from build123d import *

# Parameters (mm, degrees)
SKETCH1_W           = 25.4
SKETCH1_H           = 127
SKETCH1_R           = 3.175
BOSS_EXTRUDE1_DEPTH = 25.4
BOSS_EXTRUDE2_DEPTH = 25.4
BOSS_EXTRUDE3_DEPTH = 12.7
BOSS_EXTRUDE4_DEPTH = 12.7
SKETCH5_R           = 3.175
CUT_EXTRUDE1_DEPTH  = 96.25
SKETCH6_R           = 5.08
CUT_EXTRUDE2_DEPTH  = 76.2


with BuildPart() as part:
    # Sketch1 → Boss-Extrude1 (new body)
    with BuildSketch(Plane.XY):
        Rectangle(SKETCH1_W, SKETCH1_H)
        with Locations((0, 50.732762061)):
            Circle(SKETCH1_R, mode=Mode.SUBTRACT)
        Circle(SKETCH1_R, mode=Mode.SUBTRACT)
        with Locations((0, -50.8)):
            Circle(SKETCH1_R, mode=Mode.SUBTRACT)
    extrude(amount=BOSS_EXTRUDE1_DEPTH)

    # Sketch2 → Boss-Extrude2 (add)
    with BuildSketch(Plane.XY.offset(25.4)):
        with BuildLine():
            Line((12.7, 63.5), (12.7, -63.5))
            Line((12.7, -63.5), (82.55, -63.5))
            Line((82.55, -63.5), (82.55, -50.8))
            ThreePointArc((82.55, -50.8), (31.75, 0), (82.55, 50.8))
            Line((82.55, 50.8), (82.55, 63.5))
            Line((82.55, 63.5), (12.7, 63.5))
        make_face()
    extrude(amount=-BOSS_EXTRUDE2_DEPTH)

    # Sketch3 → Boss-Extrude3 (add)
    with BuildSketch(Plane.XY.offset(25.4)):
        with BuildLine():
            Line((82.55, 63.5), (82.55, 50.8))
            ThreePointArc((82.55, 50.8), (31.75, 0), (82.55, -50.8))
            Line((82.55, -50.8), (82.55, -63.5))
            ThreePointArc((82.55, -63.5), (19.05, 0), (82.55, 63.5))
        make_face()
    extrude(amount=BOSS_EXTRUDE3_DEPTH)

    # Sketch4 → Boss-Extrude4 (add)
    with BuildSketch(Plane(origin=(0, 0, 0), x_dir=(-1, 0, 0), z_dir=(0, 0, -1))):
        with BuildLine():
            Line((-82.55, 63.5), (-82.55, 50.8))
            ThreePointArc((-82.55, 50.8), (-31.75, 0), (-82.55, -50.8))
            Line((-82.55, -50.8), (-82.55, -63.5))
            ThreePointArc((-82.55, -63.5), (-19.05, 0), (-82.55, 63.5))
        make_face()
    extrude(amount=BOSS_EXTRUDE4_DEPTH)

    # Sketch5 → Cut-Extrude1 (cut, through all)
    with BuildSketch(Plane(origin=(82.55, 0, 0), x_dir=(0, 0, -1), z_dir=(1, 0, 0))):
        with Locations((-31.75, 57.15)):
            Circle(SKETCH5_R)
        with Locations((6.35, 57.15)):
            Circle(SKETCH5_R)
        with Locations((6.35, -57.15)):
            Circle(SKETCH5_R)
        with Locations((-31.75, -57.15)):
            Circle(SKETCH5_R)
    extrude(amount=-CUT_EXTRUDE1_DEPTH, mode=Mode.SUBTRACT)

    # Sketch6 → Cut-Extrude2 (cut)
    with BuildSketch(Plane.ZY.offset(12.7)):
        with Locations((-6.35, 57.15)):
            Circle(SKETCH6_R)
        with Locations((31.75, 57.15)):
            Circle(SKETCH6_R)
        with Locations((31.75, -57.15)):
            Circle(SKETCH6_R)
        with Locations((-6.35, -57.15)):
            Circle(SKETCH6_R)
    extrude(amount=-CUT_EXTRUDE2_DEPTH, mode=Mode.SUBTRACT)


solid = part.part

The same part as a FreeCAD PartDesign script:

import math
import FreeCAD as App
import Part
import Sketcher
Q = App.Units.Quantity

doc = App.newDocument("Part")
params = doc.addObject("Spreadsheet::Sheet", "Params")
for row, (alias, value) in enumerate([
    ("sketch1_diameter", "0.25 in"),
    ("sketch1_width", "1 in"),
    ("sketch1_height", "5 in"),
    ("pad1_length", "1 in"),
    ("sketch2_radius", "2 in"),
    ("sketch2_height", "5 in"),
    ("sketch2_width", "2.75 in"),
    ("pad2_length", "1 in"),
    ("sketch3_radius", "2 in"),
    ("sketch3_radius2", "2.5 in"),
    ("pad3_length", "0.5 in"),
    ("sketch4_radius", "2 in"),
    ("sketch4_radius2", "2.5 in"),
    ("pad4_length", "0.5 in"),
    ("sketch5_diameter", "0.25 in"),
    ("sketch6_diameter", "0.4 in"),
    ("pocket2_length", "3 in"),
], start=1):
    params.set(f"A{row}", alias)
    params.set(f"B{row}", "=" + value)
    params.setAlias(f"B{row}", alias)

body = doc.addObject("PartDesign::Body", "Body")

# Sketch on XY plane
sketch1 = body.newObject("Sketcher::SketchObject", "Sketch")
sketch1.AttachmentSupport = (doc.getObject("XY_Plane"), [""])
sketch1.MapMode = "FlatFace"
sketch1.addGeometry(Part.LineSegment(App.Vector(-12.7, 63.5, 0), App.Vector(-12.7, -63.5, 0)), False)
sketch1.addGeometry(Part.LineSegment(App.Vector(-12.7, -63.5, 0), App.Vector(12.7, -63.5, 0)), False)
sketch1.addGeometry(Part.LineSegment(App.Vector(12.7, -63.5, 0), App.Vector(12.7, 63.5, 0)), False)
sketch1.addGeometry(Part.LineSegment(App.Vector(12.7, 63.5, 0), App.Vector(-12.7, 63.5, 0)), False)
sketch1.addGeometry(Part.Circle(App.Vector(0, -50.8, 0), App.Vector(0, 0, 1), 3.2), False)
sketch1.addGeometry(Part.Circle(App.Vector(0, 0, 0), App.Vector(0, 0, 1), 3.2), False)
sketch1.addGeometry(Part.Circle(App.Vector(0, 50.7, 0), App.Vector(0, 0, 1), 3.2), False)
sketch1.addConstraint(Sketcher.Constraint("Coincident", 0, 2, 1, 1))
sketch1.addConstraint(Sketcher.Constraint("Coincident", 1, 2, 2, 1))
sketch1.addConstraint(Sketcher.Constraint("Coincident", 2, 2, 3, 1))
sketch1.addConstraint(Sketcher.Constraint("Coincident", 3, 2, 0, 1))
sketch1.addConstraint(Sketcher.Constraint("Vertical", 0))
sketch1.addConstraint(Sketcher.Constraint("Horizontal", 1))
sketch1.addConstraint(Sketcher.Constraint("Vertical", 2))
sketch1.addConstraint(Sketcher.Constraint("Horizontal", 3))
sketch1.addConstraint(Sketcher.Constraint("Coincident", 5, 3, -1, 1))
sketch1.addConstraint(Sketcher.Constraint("Equal", 4, 5))
sketch1.addConstraint(Sketcher.Constraint("Equal", 5, 6))
sketch1.addConstraint(Sketcher.Constraint("Symmetric", 0, 2, 2, 2, -1, 1))
sketch1.addConstraint(Sketcher.Constraint("PointOnObject", 4, 3, -2))
sketch1.addConstraint(Sketcher.Constraint("PointOnObject", 6, 3, -2))
sketch1.addConstraint(Sketcher.Constraint("Diameter", 4, Q("0.25 in")))
sketch1.addConstraint(Sketcher.Constraint("DistanceX", 1, 1, 1, 2, Q("1 in")))
sketch1.addConstraint(Sketcher.Constraint("DistanceY", 0, 2, 0, 1, Q("5 in")))
sketch1.addConstraint(Sketcher.Constraint("DistanceY", 4, 3, -1, 1, Q("2 in")))
sketch1.addConstraint(Sketcher.Constraint("DistanceY", -1, 1, 6, 3, 50.732762))
sketch1.setExpression("Constraints[14]", "Params.sketch1_diameter")
sketch1.setExpression("Constraints[15]", "Params.sketch1_width")
sketch1.setExpression("Constraints[16]", "Params.sketch1_height")
pad1 = body.newObject("PartDesign::Pad", "Pad")
pad1.Profile = sketch1
pad1.setExpression("Length", "Params.pad1_length")

# Sketch on XY plane
sketch2 = body.newObject("Sketcher::SketchObject", "Sketch001")
sketch2.AttachmentSupport = (doc.getObject("XY_Plane"), [""])
sketch2.MapMode = "FlatFace"
sketch2.AttachmentOffset = App.Placement(App.Vector(0, 0, 1 * 25.4), App.Rotation())
sketch2.addGeometry(Part.LineSegment(App.Vector(13, 64, 0), App.Vector(13, -64, 0)), False)
sketch2.addGeometry(Part.LineSegment(App.Vector(13, -64, 0), App.Vector(83, -64, 0)), False)
sketch2.addGeometry(Part.LineSegment(App.Vector(83, -64, 0), App.Vector(83, -51, 0)), False)
sketch2.addGeometry(Part.ArcOfCircle(Part.Circle(App.Vector(83, 0, 0), App.Vector(0, 0, 1), 51), math.radians(90), math.radians(270)), False)
sketch2.addGeometry(Part.LineSegment(App.Vector(83, 51, 0), App.Vector(83, 64, 0)), False)
sketch2.addGeometry(Part.LineSegment(App.Vector(83, 64, 0), App.Vector(13, 64, 0)), False)
sketch2.addConstraint(Sketcher.Constraint("Coincident", 0, 2, 1, 1))
sketch2.addConstraint(Sketcher.Constraint("Coincident", 1, 2, 2, 1))
sketch2.addConstraint(Sketcher.Constraint("Coincident", 2, 2, 3, 2))
sketch2.addConstraint(Sketcher.Constraint("Coincident", 3, 1, 4, 1))
sketch2.addConstraint(Sketcher.Constraint("Coincident", 4, 2, 5, 1))
sketch2.addConstraint(Sketcher.Constraint("Coincident", 5, 2, 0, 1))
sketch2.addConstraint(Sketcher.Constraint("Vertical", 0))
sketch2.addConstraint(Sketcher.Constraint("Horizontal", 1))
sketch2.addConstraint(Sketcher.Constraint("Vertical", 2))
sketch2.addConstraint(Sketcher.Constraint("Vertical", 4))
sketch2.addConstraint(Sketcher.Constraint("Horizontal", 5))
sketch2.addConstraint(Sketcher.Constraint("Symmetric", 2, 2, 3, 1, -1))
sketch2.addConstraint(Sketcher.Constraint("Vertical", 3, 3, 1, 2))
sketch2.addConstraint(Sketcher.Constraint("Equal", 2, 4))
sketch2.addConstraint(Sketcher.Constraint("Radius", 3, Q("2 in")))
sketch2.addConstraint(Sketcher.Constraint("DistanceY", 0, 2, 0, 1, Q("5 in")))
sketch2.addConstraint(Sketcher.Constraint("DistanceX", 1, 1, 1, 2, Q("2.75 in")))
sketch2.addConstraint(Sketcher.Constraint("DistanceX", -1, 1, 0, 2, Q("0.5 in")))
sketch2.setExpression("Constraints[14]", "Params.sketch2_radius")
sketch2.setExpression("Constraints[15]", "Params.sketch2_height")
sketch2.setExpression("Constraints[16]", "Params.sketch2_width")
pad2 = body.newObject("PartDesign::Pad", "Pad001")
pad2.Profile = sketch2
pad2.setExpression("Length", "Params.pad2_length")
pad2.Reversed = True

# Sketch on XY plane
sketch3 = body.newObject("Sketcher::SketchObject", "Sketch002")
sketch3.AttachmentSupport = (doc.getObject("XY_Plane"), [""])
sketch3.MapMode = "FlatFace"
sketch3.AttachmentOffset = App.Placement(App.Vector(0, 0, 1 * 25.4), App.Rotation())
sketch3.addGeometry(Part.LineSegment(App.Vector(83, 51, 0), App.Vector(83, 64, 0)), False)
sketch3.addGeometry(Part.ArcOfCircle(Part.Circle(App.Vector(83, 0, 0), App.Vector(0, 0, 1), 64), math.radians(90), math.radians(270)), False)
sketch3.addGeometry(Part.LineSegment(App.Vector(83, -64, 0), App.Vector(83, -51, 0)), False)
sketch3.addGeometry(Part.ArcOfCircle(Part.Circle(App.Vector(83, 0, 0), App.Vector(0, 0, 1), 51), math.radians(90), math.radians(270)), False)
sketch3.addConstraint(Sketcher.Constraint("Coincident", 0, 2, 1, 1))
sketch3.addConstraint(Sketcher.Constraint("Coincident", 1, 2, 2, 1))
sketch3.addConstraint(Sketcher.Constraint("Coincident", 2, 2, 3, 2))
sketch3.addConstraint(Sketcher.Constraint("Coincident", 3, 1, 0, 1))
sketch3.addConstraint(Sketcher.Constraint("Vertical", 0))
sketch3.addConstraint(Sketcher.Constraint("Vertical", 2))
sketch3.addConstraint(Sketcher.Constraint("Coincident", 3, 3, 1, 3))
sketch3.addConstraint(Sketcher.Constraint("Symmetric", 0, 2, 1, 2, -1))
sketch3.addConstraint(Sketcher.Constraint("Vertical", 3, 3, 0, 2))
sketch3.addConstraint(Sketcher.Constraint("Radius", 3, Q("2 in")))
sketch3.addConstraint(Sketcher.Constraint("Radius", 1, Q("2.5 in")))
sketch3.addConstraint(Sketcher.Constraint("DistanceX", -1, 1, 1, 3, Q("3.25 in")))
sketch3.setExpression("Constraints[9]", "Params.sketch3_radius")
sketch3.setExpression("Constraints[10]", "Params.sketch3_radius2")
pad3 = body.newObject("PartDesign::Pad", "Pad002")
pad3.Profile = sketch3
pad3.setExpression("Length", "Params.pad3_length")

# Sketch on XY plane
sketch4 = body.newObject("Sketcher::SketchObject", "Sketch003")
sketch4.AttachmentSupport = (doc.getObject("XY_Plane"), [""])
sketch4.MapMode = "FlatFace"
sketch4.addGeometry(Part.LineSegment(App.Vector(83, 64, 0), App.Vector(83, 51, 0)), False)
sketch4.addGeometry(Part.ArcOfCircle(Part.Circle(App.Vector(83, 0, 0), App.Vector(0, 0, 1), 51), math.radians(90), math.radians(270)), False)
sketch4.addGeometry(Part.LineSegment(App.Vector(83, -51, 0), App.Vector(83, -64, 0)), False)
sketch4.addGeometry(Part.ArcOfCircle(Part.Circle(App.Vector(83, 0, 0), App.Vector(0, 0, 1), 64), math.radians(90), math.radians(270)), False)
sketch4.addConstraint(Sketcher.Constraint("Coincident", 0, 2, 1, 1))
sketch4.addConstraint(Sketcher.Constraint("Coincident", 1, 2, 2, 1))
sketch4.addConstraint(Sketcher.Constraint("Coincident", 2, 2, 3, 2))
sketch4.addConstraint(Sketcher.Constraint("Coincident", 3, 1, 0, 1))
sketch4.addConstraint(Sketcher.Constraint("Vertical", 0))
sketch4.addConstraint(Sketcher.Constraint("Vertical", 2))
sketch4.addConstraint(Sketcher.Constraint("Coincident", 3, 3, 1, 3))
sketch4.addConstraint(Sketcher.Constraint("Symmetric", 0, 2, 1, 2, -1))
sketch4.addConstraint(Sketcher.Constraint("Vertical", 3, 3, 0, 2))
sketch4.addConstraint(Sketcher.Constraint("Radius", 1, Q("2 in")))
sketch4.addConstraint(Sketcher.Constraint("Radius", 3, Q("2.5 in")))
sketch4.addConstraint(Sketcher.Constraint("DistanceX", -1, 1, 1, 3, Q("3.25 in")))
sketch4.setExpression("Constraints[9]", "Params.sketch4_radius")
sketch4.setExpression("Constraints[10]", "Params.sketch4_radius2")
pad4 = body.newObject("PartDesign::Pad", "Pad003")
pad4.Profile = sketch4
pad4.setExpression("Length", "Params.pad4_length")
pad4.Reversed = True

# Sketch on YZ plane
sketch5 = body.newObject("Sketcher::SketchObject", "Sketch004")
sketch5.AttachmentSupport = (doc.getObject("YZ_Plane"), [""])
sketch5.MapMode = "FlatFace"
sketch5.AttachmentOffset = App.Placement(App.Vector(0, 0, 3.25 * 25.4), App.Rotation())
sketch5.addGeometry(Part.Circle(App.Vector(57.1, 31.8, 0), App.Vector(0, 0, 1), 3.2), False)
sketch5.addGeometry(Part.Circle(App.Vector(57.1, -6.3, 0), App.Vector(0, 0, 1), 3.2), False)
sketch5.addGeometry(Part.Circle(App.Vector(-57.1, -6.3, 0), App.Vector(0, 0, 1), 3.2), False)
sketch5.addGeometry(Part.Circle(App.Vector(-57.1, 31.8, 0), App.Vector(0, 0, 1), 3.2), False)
sketch5.addConstraint(Sketcher.Constraint("Equal", 0, 1))
sketch5.addConstraint(Sketcher.Constraint("Equal", 1, 2))
sketch5.addConstraint(Sketcher.Constraint("Equal", 2, 3))
sketch5.addConstraint(Sketcher.Constraint("Symmetric", 1, 3, 2, 3, -2))
sketch5.addConstraint(Sketcher.Constraint("Symmetric", 0, 3, 3, 3, -2))
sketch5.addConstraint(Sketcher.Constraint("Vertical", 0, 3, 1, 3))
sketch5.addConstraint(Sketcher.Constraint("Diameter", 0, Q("0.25 in")))
sketch5.addConstraint(Sketcher.Constraint("DistanceY", 1, 3, 0, 3, Q("1.5 in")))
sketch5.addConstraint(Sketcher.Constraint("DistanceX", 2, 3, 1, 3, Q("4.5 in")))
sketch5.addConstraint(Sketcher.Constraint("DistanceY", -1, 1, 0, 3, Q("1.25 in")))
sketch5.setExpression("Constraints[6]", "Params.sketch5_diameter")
pocket1 = body.newObject("PartDesign::Pocket", "Pocket")
pocket1.Profile = sketch5
pocket1.Type = "ThroughAll"

# Sketch on YZ plane
sketch6 = body.newObject("Sketcher::SketchObject", "Sketch005")
sketch6.AttachmentSupport = (doc.getObject("YZ_Plane"), [""])
sketch6.MapMode = "FlatFace"
sketch6.AttachmentOffset = App.Placement(App.Vector(0, 0, -0.5 * 25.4), App.Rotation())
sketch6.addGeometry(Part.Circle(App.Vector(57, -6, 0), App.Vector(0, 0, 1), 5), False)
sketch6.addGeometry(Part.Circle(App.Vector(57, 32, 0), App.Vector(0, 0, 1), 5), False)
sketch6.addGeometry(Part.Circle(App.Vector(-57, 32, 0), App.Vector(0, 0, 1), 5), False)
sketch6.addGeometry(Part.Circle(App.Vector(-57, -6, 0), App.Vector(0, 0, 1), 5), False)
sketch6.addConstraint(Sketcher.Constraint("Equal", 0, 1))
sketch6.addConstraint(Sketcher.Constraint("Equal", 1, 2))
sketch6.addConstraint(Sketcher.Constraint("Equal", 2, 3))
sketch6.addConstraint(Sketcher.Constraint("Symmetric", 1, 3, 2, 3, -2))
sketch6.addConstraint(Sketcher.Constraint("Symmetric", 0, 3, 3, 3, -2))
sketch6.addConstraint(Sketcher.Constraint("Vertical", 0, 3, 1, 3))
sketch6.addConstraint(Sketcher.Constraint("Diameter", 0, Q("0.4 in")))
sketch6.addConstraint(Sketcher.Constraint("DistanceY", 0, 3, 1, 3, Q("1.5 in")))
sketch6.addConstraint(Sketcher.Constraint("DistanceX", 2, 3, 1, 3, Q("4.5 in")))
sketch6.addConstraint(Sketcher.Constraint("DistanceY", 0, 3, -1, 1, Q("0.25 in")))
sketch6.setExpression("Constraints[6]", "Params.sketch6_diameter")
pocket2 = body.newObject("PartDesign::Pocket", "Pocket001")
pocket2.Profile = sketch6
pocket2.setExpression("Length", "Params.pocket2_length")
pocket2.Reversed = True

doc.recompute()
